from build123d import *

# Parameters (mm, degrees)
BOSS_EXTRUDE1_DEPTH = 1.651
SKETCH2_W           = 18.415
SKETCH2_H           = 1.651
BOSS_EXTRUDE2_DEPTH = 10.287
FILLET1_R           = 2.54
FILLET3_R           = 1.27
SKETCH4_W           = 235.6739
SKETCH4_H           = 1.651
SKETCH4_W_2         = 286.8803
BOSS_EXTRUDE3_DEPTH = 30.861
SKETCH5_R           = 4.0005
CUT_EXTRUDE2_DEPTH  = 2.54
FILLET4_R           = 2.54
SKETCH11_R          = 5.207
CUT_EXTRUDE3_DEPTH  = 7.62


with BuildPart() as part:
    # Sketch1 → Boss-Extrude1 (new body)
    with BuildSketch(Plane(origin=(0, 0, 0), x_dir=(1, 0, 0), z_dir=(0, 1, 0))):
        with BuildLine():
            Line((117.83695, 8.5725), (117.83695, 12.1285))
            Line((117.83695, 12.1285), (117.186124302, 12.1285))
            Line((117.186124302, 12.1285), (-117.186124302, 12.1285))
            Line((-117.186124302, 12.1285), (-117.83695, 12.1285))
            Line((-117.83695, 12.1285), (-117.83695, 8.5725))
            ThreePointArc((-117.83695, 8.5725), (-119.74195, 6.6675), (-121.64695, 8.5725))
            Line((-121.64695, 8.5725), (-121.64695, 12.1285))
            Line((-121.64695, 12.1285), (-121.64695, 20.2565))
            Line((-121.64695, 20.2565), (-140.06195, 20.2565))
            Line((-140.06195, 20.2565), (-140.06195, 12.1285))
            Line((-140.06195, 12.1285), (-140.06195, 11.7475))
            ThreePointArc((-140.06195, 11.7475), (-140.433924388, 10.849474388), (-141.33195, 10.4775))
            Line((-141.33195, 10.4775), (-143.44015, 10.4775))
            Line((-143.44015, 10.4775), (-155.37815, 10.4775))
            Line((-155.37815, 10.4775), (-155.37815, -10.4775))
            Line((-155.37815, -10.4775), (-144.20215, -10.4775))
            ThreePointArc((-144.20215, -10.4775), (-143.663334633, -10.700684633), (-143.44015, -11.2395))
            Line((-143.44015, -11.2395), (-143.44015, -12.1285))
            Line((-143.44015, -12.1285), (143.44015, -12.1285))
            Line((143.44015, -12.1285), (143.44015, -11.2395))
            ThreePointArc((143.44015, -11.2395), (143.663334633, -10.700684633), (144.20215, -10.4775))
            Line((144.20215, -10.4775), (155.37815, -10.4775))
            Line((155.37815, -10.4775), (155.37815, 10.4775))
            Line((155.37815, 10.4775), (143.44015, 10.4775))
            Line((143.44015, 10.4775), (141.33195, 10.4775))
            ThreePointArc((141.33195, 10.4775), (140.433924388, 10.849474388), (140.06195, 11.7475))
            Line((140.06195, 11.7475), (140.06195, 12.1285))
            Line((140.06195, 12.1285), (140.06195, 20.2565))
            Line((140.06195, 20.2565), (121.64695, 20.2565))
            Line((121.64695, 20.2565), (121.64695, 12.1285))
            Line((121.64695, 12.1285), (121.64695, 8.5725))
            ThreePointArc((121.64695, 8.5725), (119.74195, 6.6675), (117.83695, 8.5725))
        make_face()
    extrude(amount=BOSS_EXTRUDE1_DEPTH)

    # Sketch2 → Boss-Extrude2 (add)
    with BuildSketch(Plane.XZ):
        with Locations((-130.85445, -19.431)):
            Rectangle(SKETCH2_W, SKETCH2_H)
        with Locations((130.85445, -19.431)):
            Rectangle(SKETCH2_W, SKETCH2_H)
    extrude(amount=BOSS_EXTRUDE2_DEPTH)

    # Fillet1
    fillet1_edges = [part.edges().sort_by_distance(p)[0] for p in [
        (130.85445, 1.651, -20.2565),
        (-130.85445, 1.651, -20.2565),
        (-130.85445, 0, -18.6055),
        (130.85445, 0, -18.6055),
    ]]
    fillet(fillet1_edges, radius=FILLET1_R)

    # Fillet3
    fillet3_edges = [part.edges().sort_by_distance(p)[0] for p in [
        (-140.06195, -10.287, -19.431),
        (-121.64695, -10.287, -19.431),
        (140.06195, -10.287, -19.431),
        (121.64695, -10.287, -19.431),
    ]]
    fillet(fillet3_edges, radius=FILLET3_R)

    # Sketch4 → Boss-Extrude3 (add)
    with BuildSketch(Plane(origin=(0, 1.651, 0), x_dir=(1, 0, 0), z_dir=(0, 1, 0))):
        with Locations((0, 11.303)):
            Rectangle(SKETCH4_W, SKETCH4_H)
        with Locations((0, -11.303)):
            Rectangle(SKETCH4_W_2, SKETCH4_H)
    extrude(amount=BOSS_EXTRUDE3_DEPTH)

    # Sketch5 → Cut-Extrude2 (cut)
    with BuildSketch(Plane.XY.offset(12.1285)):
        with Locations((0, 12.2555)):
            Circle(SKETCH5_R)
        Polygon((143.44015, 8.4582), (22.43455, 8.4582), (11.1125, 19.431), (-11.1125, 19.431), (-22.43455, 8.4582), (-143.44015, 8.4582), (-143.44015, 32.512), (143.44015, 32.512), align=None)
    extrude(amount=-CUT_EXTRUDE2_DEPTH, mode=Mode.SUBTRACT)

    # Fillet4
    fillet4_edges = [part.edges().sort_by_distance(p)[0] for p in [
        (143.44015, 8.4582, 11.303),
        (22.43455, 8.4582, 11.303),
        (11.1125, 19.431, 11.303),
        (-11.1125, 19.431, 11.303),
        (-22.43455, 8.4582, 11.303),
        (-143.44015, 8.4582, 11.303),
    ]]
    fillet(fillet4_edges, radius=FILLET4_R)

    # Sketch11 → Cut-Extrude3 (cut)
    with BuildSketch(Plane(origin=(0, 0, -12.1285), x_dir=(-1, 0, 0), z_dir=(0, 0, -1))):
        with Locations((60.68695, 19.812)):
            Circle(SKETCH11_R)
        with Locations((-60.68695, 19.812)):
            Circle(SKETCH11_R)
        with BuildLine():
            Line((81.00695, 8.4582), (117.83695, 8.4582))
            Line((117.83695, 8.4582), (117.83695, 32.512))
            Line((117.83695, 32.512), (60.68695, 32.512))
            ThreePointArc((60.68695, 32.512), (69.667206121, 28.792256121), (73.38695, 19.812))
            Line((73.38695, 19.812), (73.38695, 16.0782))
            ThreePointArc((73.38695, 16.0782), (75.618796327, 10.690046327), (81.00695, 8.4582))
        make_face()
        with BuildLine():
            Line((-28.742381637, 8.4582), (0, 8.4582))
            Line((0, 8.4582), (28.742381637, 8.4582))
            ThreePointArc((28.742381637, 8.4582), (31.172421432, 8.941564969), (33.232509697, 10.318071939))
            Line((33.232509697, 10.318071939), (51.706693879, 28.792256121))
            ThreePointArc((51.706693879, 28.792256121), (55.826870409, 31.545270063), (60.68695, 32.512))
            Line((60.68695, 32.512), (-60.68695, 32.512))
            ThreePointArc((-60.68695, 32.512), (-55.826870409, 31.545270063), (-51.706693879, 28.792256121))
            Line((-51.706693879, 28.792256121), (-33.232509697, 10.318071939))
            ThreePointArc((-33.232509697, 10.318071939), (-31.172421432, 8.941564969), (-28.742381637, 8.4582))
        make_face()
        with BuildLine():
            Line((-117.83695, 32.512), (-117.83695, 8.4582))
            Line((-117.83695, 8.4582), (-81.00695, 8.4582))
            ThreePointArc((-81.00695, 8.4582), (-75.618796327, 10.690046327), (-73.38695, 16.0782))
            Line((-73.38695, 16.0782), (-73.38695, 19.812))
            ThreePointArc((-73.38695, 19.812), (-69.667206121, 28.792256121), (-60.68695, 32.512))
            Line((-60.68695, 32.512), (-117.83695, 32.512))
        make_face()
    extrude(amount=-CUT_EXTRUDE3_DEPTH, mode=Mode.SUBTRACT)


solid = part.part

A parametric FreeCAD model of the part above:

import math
import FreeCAD as App
import Part
import Sketcher

V = App.Vector
Q = App.Units.Quantity


def edges_at(feature, points):
    """Names of the edges that pass closest to the given points."""
    edges = feature.Shape.Edges
    near = lambda p: min(range(len(edges)), key=lambda i: edges[i].distToShape(Part.Vertex(*p))[0])
    return sorted({f"Edge{near(p) + 1}" for p in points})


def add_polygon(sketch, points):
    """Adds a closed chain of lines whose ends are joined by coincident constraints."""
    first, n = sketch.GeometryCount, len(points)
    for a, b in zip(points, points[1:] + points[:1]):
        sketch.addGeometry(Part.LineSegment(App.Vector(*a, 0), App.Vector(*b, 0)), False)
    for i in range(n):
        sketch.addConstraint(Sketcher.Constraint("Coincident", first + i, 2, first + (i + 1) % n, 1))

doc = App.newDocument("Part")
body = doc.addObject("PartDesign::Body", "Body")

sketch1 = body.newObject("Sketcher::SketchObject", "Sketch")
sketch1.AttachmentSupport = (doc.getObject("XZ_Plane"), [""])
sketch1.MapMode = "FlatFace"
sketch1.addGeometry([
    Part.LineSegment(V(117.83695, -8.5725, 0), V(117.83695, -12.1285, 0)),
    Part.LineSegment(V(117.83695, -12.1285, 0), V(-117.83695, -12.1285, 0)),
    Part.LineSegment(V(-117.83695, -12.1285, 0), V(-117.83695, -8.5725, 0)),
    Part.ArcOfCircle(Part.Circle(V(-119.74195, -8.5725, 0), V(0, 0, 1), 1.905), math.radians(0), math.radians(180)),
    Part.LineSegment(V(-121.64695, -8.5725, 0), V(-121.64695, -20.2565, 0)),
    Part.LineSegment(V(-121.64695, -20.2565, 0), V(-140.06195, -20.2565, 0)),
    Part.LineSegment(V(-140.06195, -20.2565, 0), V(-140.06195, -11.7475, 0)),
    Part.ArcOfCircle(Part.Circle(V(-141.33195, -11.7475, 0), V(0, 0, 1), 1.27), math.radians(0), math.radians(90)),
    Part.LineSegment(V(-141.33195, -10.4775, 0), V(-155.37815, -10.4775, 0)),
    Part.LineSegment(V(-155.37815, -10.4775, 0), V(-155.37815, 10.4775, 0)),
    Part.LineSegment(V(-155.37815, 10.4775, 0), V(-144.20215, 10.4775, 0)),
    Part.ArcOfCircle(Part.Circle(V(-144.20215, 11.2395, 0), V(0, 0, 1), 0.762), math.radians(-90), math.radians(0)),
    Part.LineSegment(V(-143.44015, 11.2395, 0), V(-143.44015, 12.1285, 0)),
    Part.LineSegment(V(-143.44015, 12.1285, 0), V(143.44015, 12.1285, 0)),
    Part.LineSegment(V(143.44015, 12.1285, 0), V(143.44015, 11.2395, 0)),
    Part.ArcOfCircle(Part.Circle(V(144.20215, 11.2395, 0), V(0, 0, 1), 0.762), math.radians(-180), math.radians(-90)),
    Part.LineSegment(V(144.20215, 10.4775, 0), V(155.37815, 10.4775, 0)),
    Part.LineSegment(V(155.37815, 10.4775, 0), V(155.37815, -10.4775, 0)),
    Part.LineSegment(V(155.37815, -10.4775, 0), V(141.33195, -10.4775, 0)),
    Part.ArcOfCircle(Part.Circle(V(141.33195, -11.7475, 0), V(0, 0, 1), 1.27), math.radians(90), math.radians(180)),
    Part.LineSegment(V(140.06195, -11.7475, 0), V(140.06195, -20.2565, 0)),
    Part.LineSegment(V(140.06195, -20.2565, 0), V(121.64695, -20.2565, 0)),
    Part.LineSegment(V(121.64695, -20.2565, 0), V(121.64695, -8.5725, 0)),
    Part.ArcOfCircle(Part.Circle(V(119.74195, -8.5725, 0), V(0, 0, 1), 1.905), math.radians(0), math.radians(180)),
], False)
sketch1.addConstraint([
    Sketcher.Constraint("Coincident", 0, 2, 1, 1),
    Sketcher.Constraint("Coincident", 1, 2, 2, 1),
    Sketcher.Constraint("Tangent", 2, 2, 3, 1),
    Sketcher.Constraint("Tangent", 3, 2, 4, 1),
    Sketcher.Constraint("Coincident", 4, 2, 5, 1),
    Sketcher.Constraint("Coincident", 5, 2, 6, 1),
    Sketcher.Constraint("Tangent", 6, 2, 7, 1),
    Sketcher.Constraint("Tangent", 7, 2, 8, 1),
    Sketcher.Constraint("Coincident", 8, 2, 9, 1),
    Sketcher.Constraint("Coincident", 9, 2, 10, 1),
    Sketcher.Constraint("Tangent", 10, 2, 11, 1),
    Sketcher.Constraint("Tangent", 11, 2, 12, 1),
    Sketcher.Constraint("Coincident", 12, 2, 13, 1),
    Sketcher.Constraint("Coincident", 13, 2, 14, 1),
    Sketcher.Constraint("Tangent", 14, 2, 15, 1),
    Sketcher.Constraint("Tangent", 15, 2, 16, 1),
    Sketcher.Constraint("Coincident", 16, 2, 17, 1),
    Sketcher.Constraint("Coincident", 17, 2, 18, 1),
    Sketcher.Constraint("Tangent", 18, 2, 19, 1),
    Sketcher.Constraint("Tangent", 19, 2, 20, 1),
    Sketcher.Constraint("Coincident", 20, 2, 21, 1),
    Sketcher.Constraint("Coincident", 21, 2, 22, 1),
    Sketcher.Constraint("Tangent", 22, 2, 23, 1),
    Sketcher.Constraint("Tangent", 23, 2, 0, 1),
    Sketcher.Constraint("Vertical", 0),
    Sketcher.Constraint("Horizontal", 1),
    Sketcher.Constraint("Vertical", 2),
    Sketcher.Constraint("Vertical", 4),
    Sketcher.Constraint("Horizontal", 5),
    Sketcher.Constraint("Vertical", 6),
    Sketcher.Constraint("Horizontal", 8),
    Sketcher.Constraint("Vertical", 9),
    Sketcher.Constraint("Horizontal", 10),
    Sketcher.Constraint("Vertical", 12),
    Sketcher.Constraint("Horizontal", 13),
    Sketcher.Constraint("Vertical", 14),
    Sketcher.Constraint("Horizontal", 16),
    Sketcher.Constraint("Vertical", 17),
    Sketcher.Constraint("Horizontal", 18),
    Sketcher.Constraint("Vertical", 20),
    Sketcher.Constraint("Horizontal", 21),
    Sketcher.Constraint("Vertical", 22),
    Sketcher.Constraint("Equal", 11, 15),
    Sketcher.Constraint("Equal", 7, 19),
    Sketcher.Constraint("Equal", 3, 23),
    Sketcher.Constraint("Symmetric", 8, 2, 16, 2, -1, 1),
    Sketcher.Constraint("Symmetric", 11, 3, 15, 3, -2),
    Sketcher.Constraint("Symmetric", 7, 3, 19, 3, -2),
    Sketcher.Constraint("Symmetric", 3, 3, 23, 3, -2),
    Sketcher.Constraint("Horizontal", 5, 2, 20, 2),
    Sketcher.Constraint("Radius", 7, Q("0.05 in")),
    Sketcher.Constraint("Radius", 11, Q("0.03 in")),
    Sketcher.Constraint("Radius", 3, Q("0.075 in")),
    Sketcher.Constraint("DistanceX", 10, 1, 10, 2, Q("0.44 in")),
    Sketcher.Constraint("DistanceY", 0, 2, 0, 1, Q("0.14 in")),
    Sketcher.Constraint("DistanceY", 4, 2, 4, 1, Q("0.46 in")),
    Sketcher.Constraint("DistanceX", 5, 2, 3, 3, Q("0.8 in")),
    Sketcher.Constraint("DistanceX", 8, 2, 8, 1, Q("0.553 in")),
    Sketcher.Constraint("DistanceY", 6, 1, 6, 2, Q("0.335 in")),
    Sketcher.Constraint("DistanceY", 9, 1, 9, 2, Q("0.825 in")),
    Sketcher.Constraint("DistanceY", 12, 1, 12, 2, Q("0.035 in")),
    Sketcher.Constraint("DistanceX", 1, 2, 1, 1, Q("9.2785 in")),
])
pad1 = body.newObject("PartDesign::Pad", "Pad")
pad1.Profile = sketch1
pad1.Length = Q("0.065 in")
pad1.Reversed = True

sketch2 = body.newObject("Sketcher::SketchObject", "Sketch001")
sketch2.AttachmentSupport = (doc.getObject("XZ_Plane"), [""])
sketch2.MapMode = "FlatFace"
add_polygon(sketch2, [(-140.06195, -18.6055), (-140.06195, -20.2565), (-121.64695, -20.2565), (-121.64695, -18.6055)])
add_polygon(sketch2, [(121.64695, -18.6055), (121.64695, -20.2565), (140.06195, -20.2565), (140.06195, -18.6055)])
sketch2.addConstraint([
    Sketcher.Constraint("Vertical", 0),
    Sketcher.Constraint("Horizontal", 1),
    Sketcher.Constraint("Vertical", 2),
    Sketcher.Constraint("Horizontal", 3),
    Sketcher.Constraint("Vertical", 4),
    Sketcher.Constraint("Horizontal", 5),
    Sketcher.Constraint("Vertical", 6),
    Sketcher.Constraint("Horizontal", 7),
    Sketcher.Constraint("Symmetric", 1, 2, 4, 2, -2),
    Sketcher.Constraint("Symmetric", 3, 2, 6, 2, -2),
    Sketcher.Constraint("DistanceX", 1, 1, 1, 2, Q("0.725 in")),
    Sketcher.Constraint("DistanceY", 0, 2, 0, 1, Q("0.065 in")),
    Sketcher.Constraint("DistanceY", 0, 2, -1, 1, Q("0.7975 in")),
    Sketcher.Constraint("DistanceX", 1, 2, 4, 2, Q("9.5785 in")),
])
pad2 = body.newObject("PartDesign::Pad", "Pad001")
pad2.Profile = sketch2
pad2.Length = Q("0.405 in")
doc.recompute()

fillet = body.newObject("PartDesign::Fillet", "Fillet")
fillet.Base = (pad2, edges_at(pad2, [
    (130.854, 1.651, -20.256),
    (-130.854, 1.651, -20.256),
    (-130.854, 0, -18.605),
    (130.854, 0, -18.605),
]))
fillet.Radius = Q("0.1 in")
doc.recompute()

fillet2 = body.newObject("PartDesign::Fillet", "Fillet001")
fillet2.Base = (fillet, edges_at(fillet, [
    (-140.062, -10.287, -19.431),
    (-121.647, -10.287, -19.431),
    (140.062, -10.287, -19.431),
    (121.647, -10.287, -19.431),
]))
fillet2.Radius = Q("0.05 in")

sketch3 = body.newObject("Sketcher::SketchObject", "Sketch002")
sketch3.AttachmentSupport = (doc.getObject("XZ_Plane"), [""])
sketch3.MapMode = "FlatFace"
sketch3.AttachmentOffset = App.Placement(V(0, 0, -0.065 * 25.4), App.Rotation())
add_polygon(sketch3, [(-117.83695, -12.1285), (-117.83695, -10.4775), (117.83695, -10.4775), (117.83695, -12.1285)])
add_polygon(sketch3, [(-143.44015, 10.4775), (-143.44015, 12.1285), (143.44015, 12.1285), (143.44015, 10.4775)])
sketch3.addConstraint([
    Sketcher.Constraint("Vertical", 0),
    Sketcher.Constraint("Horizontal", 1),
    Sketcher.Constraint("Vertical", 2),
    Sketcher.Constraint("Horizontal", 3),
    Sketcher.Constraint("Vertical", 4),
    Sketcher.Constraint("Horizontal", 5),
    Sketcher.Constraint("Vertical", 6),
    Sketcher.Constraint("Horizontal", 7),
    Sketcher.Constraint("Equal", 2, 4),
    Sketcher.Constraint("DistanceY", 0, 1, 0, 2, Q("0.065 in")),
    Sketcher.Constraint("DistanceY", 0, 2, 4, 2, Q("0.89 in")),
    Sketcher.Constraint("DistanceX", 1, 1, 1, 2, Q("9.2785 in")),
    Sketcher.Constraint("DistanceX", 5, 1, 5, 2, Q("11.2945 in")),
    Sketcher.Constraint("DistanceX", 4, 2, 0, 2, Q("1.008 in")),
    Sketcher.Constraint("DistanceY", 0, 2, -1, 1, Q("0.4125 in")),
    Sketcher.Constraint("DistanceX", 0, 2, -1, 1, Q("117.83695 mm")),
])
pad3 = body.newObject("PartDesign::Pad", "Pad002")
pad3.Profile = sketch3
pad3.Length = Q("1.215 in")
pad3.Reversed = True

sketch4 = body.newObject("Sketcher::SketchObject", "Sketch003")
sketch4.AttachmentSupport = (doc.getObject("XY_Plane"), [""])
sketch4.MapMode = "FlatFace"
sketch4.AttachmentOffset = App.Placement(V(0, 0, 0.4775 * 25.4), App.Rotation())
sketch4.addGeometry(Part.Circle(V(0, 12.2555, 0), V(0, 0, 1), 4.0005), False)
add_polygon(sketch4, [(22.43455, 8.4582), (143.44015, 8.4582), (143.44015, 32.512), (-143.44015, 32.512), (-143.44015, 8.4582), (-22.43455, 8.4582), (-11.1125, 19.431), (11.1125, 19.431)])
sketch4.addConstraint([
    Sketcher.Constraint("Horizontal", 1),
    Sketcher.Constraint("Vertical", 2),
    Sketcher.Constraint("Horizontal", 3),
    Sketcher.Constraint("Vertical", 4),
    Sketcher.Constraint("Horizontal", 5),
    Sketcher.Constraint("Horizontal", 7),
    Sketcher.Constraint("Symmetric", 1, 2, 4, 2, -2),
    Sketcher.Constraint("PointOnObject", 0, 3, -2),
    Sketcher.Constraint("Equal", 1, 5),
    Sketcher.Constraint("Equal", 6, 8),
    Sketcher.Constraint("Diameter", 0, Q("0.315 in")),
    Sketcher.Constraint("DistanceX", 1, 1, 1, 2, Q("4.764 in")),
    Sketcher.Constraint("DistanceX", 7, 1, 7, 2, Q("0.875 in")),
    Sketcher.Constraint("DistanceY", 2, 1, 2, 2, Q("0.947 in")),
    Sketcher.Constraint("DistanceY", -1, 1, 2, 2, Q("1.28 in")),
    Sketcher.Constraint("DistanceX", 3, 2, 3, 1, Q("11.2945 in")),
    Sketcher.Constraint("DistanceY", -1, 1, 6, 2, Q("0.765 in")),
    Sketcher.Constraint("DistanceY", -1, 1, 0, 3, Q("0.4825 in")),
])
pocket1 = body.newObject("PartDesign::Pocket", "Pocket")
pocket1.Profile = sketch4
pocket1.Length = Q("0.1 in")
doc.recompute()

fillet3 = body.newObject("PartDesign::Fillet", "Fillet002")
fillet3.Base = (pocket1, edges_at(pocket1, [
    (143.44, 8.458, 11.303),
    (22.435, 8.458, 11.303),
    (11.113, 19.431, 11.303),
    (-11.113, 19.431, 11.303),
    (-22.435, 8.458, 11.303),
    (-143.44, 8.458, 11.303),
]))
fillet3.Radius = Q("0.1 in")

sketch5 = body.newObject("Sketcher::SketchObject", "Sketch004")
sketch5.AttachmentSupport = (doc.getObject("XY_Plane"), [""])
sketch5.MapMode = "FlatFace"
sketch5.AttachmentOffset = App.Placement(V(0, 0, -0.4775 * 25.4), App.Rotation())
sketch5.addGeometry([
    Part.Circle(V(-60.68695, 19.812, 0), V(0, 0, 1), 5.207),
    Part.Circle(V(60.68695, 19.812, 0), V(0, 0, 1), 5.207),
    Part.LineSegment(V(-81.00695, 8.4582, 0), V(-117.83695, 8.4582, 0)),
    Part.LineSegment(V(-117.83695, 8.4582, 0), V(-117.83695, 32.512, 0)),
    Part.LineSegment(V(-117.83695, 32.512, 0), V(-60.68695, 32.512, 0)),
    Part.ArcOfCircle(Part.Circle(V(-60.68695, 19.812, 0), V(0, 0, 1), 12.7), math.radians(90), math.radians(180)),
    Part.LineSegment(V(-73.38695, 19.812, 0), V(-73.38695, 16.0782, 0)),
    Part.ArcOfCircle(Part.Circle(V(-81.00695, 16.0782, 0), V(0, 0, 1), 7.62), math.radians(-90), math.radians(0)),
    Part.LineSegment(V(28.742382, 8.4582, 0), V(-28.742382, 8.4582, 0)),
    Part.ArcOfCircle(Part.Circle(V(-28.742382, 14.8082, 0), V(0, 0, 1), 6.35), math.radians(-135), math.radians(-90)),
    Part.LineSegment(V(-33.23251, 10.318072, 0), V(-51.706694, 28.792256, 0)),
    Part.ArcOfCircle(Part.Circle(V(-60.68695, 19.812, 0), V(0, 0, 1), 12.7), math.radians(45), math.radians(90)),
    Part.LineSegment(V(-60.68695, 32.512, 0), V(60.68695, 32.512, 0)),
    Part.ArcOfCircle(Part.Circle(V(60.68695, 19.812, 0), V(0, 0, 1), 12.7), math.radians(90), math.radians(135)),
    Part.LineSegment(V(51.706694, 28.792256, 0), V(33.23251, 10.318072, 0)),
    Part.ArcOfCircle(Part.Circle(V(28.742382, 14.8082, 0), V(0, 0, 1), 6.35), math.radians(-90), math.radians(-45)),
    Part.LineSegment(V(117.83695, 32.512, 0), V(117.83695, 8.4582, 0)),
    Part.LineSegment(V(117.83695, 8.4582, 0), V(81.00695, 8.4582, 0)),
    Part.ArcOfCircle(Part.Circle(V(81.00695, 16.0782, 0), V(0, 0, 1), 7.62), math.radians(180), math.radians(270)),
    Part.LineSegment(V(73.38695, 16.0782, 0), V(73.38695, 19.812, 0)),
    Part.ArcOfCircle(Part.Circle(V(60.68695, 19.812, 0), V(0, 0, 1), 12.7), math.radians(0), math.radians(90)),
    Part.LineSegment(V(60.68695, 32.512, 0), V(117.83695, 32.512, 0)),
], False)
sketch5.addConstraint([
    Sketcher.Constraint("Coincident", 2, 2, 3, 1),
    Sketcher.Constraint("Coincident", 3, 2, 4, 1),
    Sketcher.Constraint("Tangent", 4, 2, 5, 1),
    Sketcher.Constraint("Tangent", 5, 2, 6, 1),
    Sketcher.Constraint("Tangent", 6, 2, 7, 2),
    Sketcher.Constraint("Tangent", 7, 1, 2, 1),
    Sketcher.Constraint("Tangent", 8, 2, 9, 2),
    Sketcher.Constraint("Tangent", 9, 1, 10, 1),
    Sketcher.Constraint("Tangent", 10, 2, 11, 1),
    Sketcher.Constraint("Tangent", 11, 2, 12, 1),
    Sketcher.Constraint("Tangent", 12, 2, 13, 1),
    Sketcher.Constraint("Tangent", 13, 2, 14, 1),
    Sketcher.Constraint("Tangent", 14, 2, 15, 2),
    Sketcher.Constraint("Tangent", 15, 1, 8, 1),
    Sketcher.Constraint("Coincident", 16, 2, 17, 1),
    Sketcher.Constraint("Tangent", 17, 2, 18, 2),
    Sketcher.Constraint("Tangent", 18, 1, 19, 1),
    Sketcher.Constraint("Tangent", 19, 2, 20, 1),
    Sketcher.Constraint("Tangent", 20, 2, 21, 1),
    Sketcher.Constraint("Coincident", 21, 2, 16, 1),
    Sketcher.Constraint("Horizontal", 2),
    Sketcher.Constraint("Vertical", 3),
    Sketcher.Constraint("Horizontal", 4),
    Sketcher.Constraint("Vertical", 6),
    Sketcher.Constraint("Horizontal", 8),
    Sketcher.Constraint("Horizontal", 12),
    Sketcher.Constraint("Vertical", 16),
    Sketcher.Constraint("Horizontal", 17),
    Sketcher.Constraint("Vertical", 19),
    Sketcher.Constraint("Horizontal", 21),
    Sketcher.Constraint("Coincident", 5, 3, 0, 3),
    Sketcher.Constraint("Coincident", 11, 3, 0, 3),
    Sketcher.Constraint("Coincident", 13, 3, 1, 3),
    Sketcher.Constraint("Coincident", 20, 3, 1, 3),
    Sketcher.Constraint("Equal", 0, 1),
    Sketcher.Constraint("Equal", 5, 11),
    Sketcher.Constraint("Equal", 11, 13),
    Sketcher.Constraint("Equal", 9, 15),
    Sketcher.Constraint("Equal", 7, 18),
    Sketcher.Constraint("Equal", 13, 20),
    Sketcher.Constraint("Symmetric", 7, 3, 18, 3, -2),
    Sketcher.Constraint("Perpendicular", 10, 14),
    Sketcher.Constraint("Horizontal", 7, 1, 8, 2),
    Sketcher.Constraint("Horizontal", 10, 2, 13, 2),
    Sketcher.Constraint("Equal", 2, 17),
    Sketcher.Constraint("Radius", 5, Q("0.5 in")),
    Sketcher.Constraint("Radius", 7, Q("0.3 in")),
    Sketcher.Constraint("Diameter", 0, Q("0.41 in")),
    Sketcher.Constraint("Radius", 9, Q("0.25 in")),
    Sketcher.Constraint("DistanceX", 2, 2, 2, 1, Q("1.45 in")),
    Sketcher.Constraint("DistanceY", 3, 1, 3, 2, Q("0.947 in")),
    Sketcher.Constraint("DistanceY", -1, 1, 0, 3, Q("0.78 in")),
    Sketcher.Constraint("DistanceX", 12, 1, 12, 2, Q("4.7785 in")),
])
pocket2 = body.newObject("PartDesign::Pocket", "Pocket001")
pocket2.Profile = sketch5
pocket2.Length = Q("0.3 in")
pocket2.Reversed = True

doc.recompute()
